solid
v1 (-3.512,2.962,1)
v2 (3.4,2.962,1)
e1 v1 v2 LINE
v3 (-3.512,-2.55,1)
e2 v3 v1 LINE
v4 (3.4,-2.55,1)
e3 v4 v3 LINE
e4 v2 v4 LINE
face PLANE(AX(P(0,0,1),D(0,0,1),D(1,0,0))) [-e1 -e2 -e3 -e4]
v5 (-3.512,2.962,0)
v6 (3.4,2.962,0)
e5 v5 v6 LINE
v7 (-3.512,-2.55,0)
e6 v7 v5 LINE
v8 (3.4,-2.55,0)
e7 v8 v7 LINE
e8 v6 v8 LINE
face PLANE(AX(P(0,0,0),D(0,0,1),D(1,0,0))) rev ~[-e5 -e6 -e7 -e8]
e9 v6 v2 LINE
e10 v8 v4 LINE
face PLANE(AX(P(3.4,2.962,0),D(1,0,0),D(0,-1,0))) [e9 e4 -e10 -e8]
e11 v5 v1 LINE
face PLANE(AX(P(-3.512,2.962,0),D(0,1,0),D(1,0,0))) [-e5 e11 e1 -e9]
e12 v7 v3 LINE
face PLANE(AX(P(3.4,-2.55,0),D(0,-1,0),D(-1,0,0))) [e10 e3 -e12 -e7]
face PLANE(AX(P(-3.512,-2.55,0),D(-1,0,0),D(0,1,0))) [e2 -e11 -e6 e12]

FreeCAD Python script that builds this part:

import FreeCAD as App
import Part
import Sketcher
from FreeCAD import Vector
Q = App.Units.Quantity

doc = App.newDocument("Part")
body = doc.addObject("PartDesign::Body", "Body")

sketch1 = doc.addObject("Sketcher::SketchObject", "Sketch")
body.addObject(sketch1)
sketch1.AttachmentSupport = (doc.XY_Plane, [""])
sketch1.MapMode = "FlatFace"
sketch1.addGeometry(Part.LineSegment(Vector(-4, 3, 0), Vector(-4, -3, 0)), False)
sketch1.addGeometry(Part.LineSegment(Vector(-4, -3, 0), Vector(3, -3, 0)), False)
sketch1.addGeometry(Part.LineSegment(Vector(3, -3, 0), Vector(3, 3, 0)), False)
sketch1.addGeometry(Part.LineSegment(Vector(3, 3, 0), Vector(-4, 3, 0)), False)
sketch1.addConstraint(Sketcher.Constraint("Coincident", 0, 2, 1, 1))
sketch1.addConstraint(Sketcher.Constraint("Coincident", 1, 2, 2, 1))
sketch1.addConstraint(Sketcher.Constraint("Coincident", 2, 2, 3, 1))
sketch1.addConstraint(Sketcher.Constraint("Coincident", 3, 2, 0, 1))
sketch1.addConstraint(Sketcher.Constraint("Vertical", 0))
sketch1.addConstraint(Sketcher.Constraint("Horizontal", 1))
sketch1.addConstraint(Sketcher.Constraint("Vertical", 2))
sketch1.addConstraint(Sketcher.Constraint("Horizontal", 3))
sketch1.addConstraint(Sketcher.Constraint("DistanceX", -1, 1, 1, 2, Q("3.4 mm")))
sketch1.addConstraint(Sketcher.Constraint("DistanceX", 1, 1, 1, 2, Q("6.912 mm")))
sketch1.addConstraint(Sketcher.Constraint("DistanceY", 0, 2, 0, 1, Q("5.512 mm")))
sketch1.addConstraint(Sketcher.Constraint("DistanceY", 0, 2, -1, 1, Q("2.55 mm")))
pad1 = doc.addObject("PartDesign::Pad", "Pad")
body.addObject(pad1)
pad1.Profile = sketch1
pad1.Length = 1

doc.recompute()
